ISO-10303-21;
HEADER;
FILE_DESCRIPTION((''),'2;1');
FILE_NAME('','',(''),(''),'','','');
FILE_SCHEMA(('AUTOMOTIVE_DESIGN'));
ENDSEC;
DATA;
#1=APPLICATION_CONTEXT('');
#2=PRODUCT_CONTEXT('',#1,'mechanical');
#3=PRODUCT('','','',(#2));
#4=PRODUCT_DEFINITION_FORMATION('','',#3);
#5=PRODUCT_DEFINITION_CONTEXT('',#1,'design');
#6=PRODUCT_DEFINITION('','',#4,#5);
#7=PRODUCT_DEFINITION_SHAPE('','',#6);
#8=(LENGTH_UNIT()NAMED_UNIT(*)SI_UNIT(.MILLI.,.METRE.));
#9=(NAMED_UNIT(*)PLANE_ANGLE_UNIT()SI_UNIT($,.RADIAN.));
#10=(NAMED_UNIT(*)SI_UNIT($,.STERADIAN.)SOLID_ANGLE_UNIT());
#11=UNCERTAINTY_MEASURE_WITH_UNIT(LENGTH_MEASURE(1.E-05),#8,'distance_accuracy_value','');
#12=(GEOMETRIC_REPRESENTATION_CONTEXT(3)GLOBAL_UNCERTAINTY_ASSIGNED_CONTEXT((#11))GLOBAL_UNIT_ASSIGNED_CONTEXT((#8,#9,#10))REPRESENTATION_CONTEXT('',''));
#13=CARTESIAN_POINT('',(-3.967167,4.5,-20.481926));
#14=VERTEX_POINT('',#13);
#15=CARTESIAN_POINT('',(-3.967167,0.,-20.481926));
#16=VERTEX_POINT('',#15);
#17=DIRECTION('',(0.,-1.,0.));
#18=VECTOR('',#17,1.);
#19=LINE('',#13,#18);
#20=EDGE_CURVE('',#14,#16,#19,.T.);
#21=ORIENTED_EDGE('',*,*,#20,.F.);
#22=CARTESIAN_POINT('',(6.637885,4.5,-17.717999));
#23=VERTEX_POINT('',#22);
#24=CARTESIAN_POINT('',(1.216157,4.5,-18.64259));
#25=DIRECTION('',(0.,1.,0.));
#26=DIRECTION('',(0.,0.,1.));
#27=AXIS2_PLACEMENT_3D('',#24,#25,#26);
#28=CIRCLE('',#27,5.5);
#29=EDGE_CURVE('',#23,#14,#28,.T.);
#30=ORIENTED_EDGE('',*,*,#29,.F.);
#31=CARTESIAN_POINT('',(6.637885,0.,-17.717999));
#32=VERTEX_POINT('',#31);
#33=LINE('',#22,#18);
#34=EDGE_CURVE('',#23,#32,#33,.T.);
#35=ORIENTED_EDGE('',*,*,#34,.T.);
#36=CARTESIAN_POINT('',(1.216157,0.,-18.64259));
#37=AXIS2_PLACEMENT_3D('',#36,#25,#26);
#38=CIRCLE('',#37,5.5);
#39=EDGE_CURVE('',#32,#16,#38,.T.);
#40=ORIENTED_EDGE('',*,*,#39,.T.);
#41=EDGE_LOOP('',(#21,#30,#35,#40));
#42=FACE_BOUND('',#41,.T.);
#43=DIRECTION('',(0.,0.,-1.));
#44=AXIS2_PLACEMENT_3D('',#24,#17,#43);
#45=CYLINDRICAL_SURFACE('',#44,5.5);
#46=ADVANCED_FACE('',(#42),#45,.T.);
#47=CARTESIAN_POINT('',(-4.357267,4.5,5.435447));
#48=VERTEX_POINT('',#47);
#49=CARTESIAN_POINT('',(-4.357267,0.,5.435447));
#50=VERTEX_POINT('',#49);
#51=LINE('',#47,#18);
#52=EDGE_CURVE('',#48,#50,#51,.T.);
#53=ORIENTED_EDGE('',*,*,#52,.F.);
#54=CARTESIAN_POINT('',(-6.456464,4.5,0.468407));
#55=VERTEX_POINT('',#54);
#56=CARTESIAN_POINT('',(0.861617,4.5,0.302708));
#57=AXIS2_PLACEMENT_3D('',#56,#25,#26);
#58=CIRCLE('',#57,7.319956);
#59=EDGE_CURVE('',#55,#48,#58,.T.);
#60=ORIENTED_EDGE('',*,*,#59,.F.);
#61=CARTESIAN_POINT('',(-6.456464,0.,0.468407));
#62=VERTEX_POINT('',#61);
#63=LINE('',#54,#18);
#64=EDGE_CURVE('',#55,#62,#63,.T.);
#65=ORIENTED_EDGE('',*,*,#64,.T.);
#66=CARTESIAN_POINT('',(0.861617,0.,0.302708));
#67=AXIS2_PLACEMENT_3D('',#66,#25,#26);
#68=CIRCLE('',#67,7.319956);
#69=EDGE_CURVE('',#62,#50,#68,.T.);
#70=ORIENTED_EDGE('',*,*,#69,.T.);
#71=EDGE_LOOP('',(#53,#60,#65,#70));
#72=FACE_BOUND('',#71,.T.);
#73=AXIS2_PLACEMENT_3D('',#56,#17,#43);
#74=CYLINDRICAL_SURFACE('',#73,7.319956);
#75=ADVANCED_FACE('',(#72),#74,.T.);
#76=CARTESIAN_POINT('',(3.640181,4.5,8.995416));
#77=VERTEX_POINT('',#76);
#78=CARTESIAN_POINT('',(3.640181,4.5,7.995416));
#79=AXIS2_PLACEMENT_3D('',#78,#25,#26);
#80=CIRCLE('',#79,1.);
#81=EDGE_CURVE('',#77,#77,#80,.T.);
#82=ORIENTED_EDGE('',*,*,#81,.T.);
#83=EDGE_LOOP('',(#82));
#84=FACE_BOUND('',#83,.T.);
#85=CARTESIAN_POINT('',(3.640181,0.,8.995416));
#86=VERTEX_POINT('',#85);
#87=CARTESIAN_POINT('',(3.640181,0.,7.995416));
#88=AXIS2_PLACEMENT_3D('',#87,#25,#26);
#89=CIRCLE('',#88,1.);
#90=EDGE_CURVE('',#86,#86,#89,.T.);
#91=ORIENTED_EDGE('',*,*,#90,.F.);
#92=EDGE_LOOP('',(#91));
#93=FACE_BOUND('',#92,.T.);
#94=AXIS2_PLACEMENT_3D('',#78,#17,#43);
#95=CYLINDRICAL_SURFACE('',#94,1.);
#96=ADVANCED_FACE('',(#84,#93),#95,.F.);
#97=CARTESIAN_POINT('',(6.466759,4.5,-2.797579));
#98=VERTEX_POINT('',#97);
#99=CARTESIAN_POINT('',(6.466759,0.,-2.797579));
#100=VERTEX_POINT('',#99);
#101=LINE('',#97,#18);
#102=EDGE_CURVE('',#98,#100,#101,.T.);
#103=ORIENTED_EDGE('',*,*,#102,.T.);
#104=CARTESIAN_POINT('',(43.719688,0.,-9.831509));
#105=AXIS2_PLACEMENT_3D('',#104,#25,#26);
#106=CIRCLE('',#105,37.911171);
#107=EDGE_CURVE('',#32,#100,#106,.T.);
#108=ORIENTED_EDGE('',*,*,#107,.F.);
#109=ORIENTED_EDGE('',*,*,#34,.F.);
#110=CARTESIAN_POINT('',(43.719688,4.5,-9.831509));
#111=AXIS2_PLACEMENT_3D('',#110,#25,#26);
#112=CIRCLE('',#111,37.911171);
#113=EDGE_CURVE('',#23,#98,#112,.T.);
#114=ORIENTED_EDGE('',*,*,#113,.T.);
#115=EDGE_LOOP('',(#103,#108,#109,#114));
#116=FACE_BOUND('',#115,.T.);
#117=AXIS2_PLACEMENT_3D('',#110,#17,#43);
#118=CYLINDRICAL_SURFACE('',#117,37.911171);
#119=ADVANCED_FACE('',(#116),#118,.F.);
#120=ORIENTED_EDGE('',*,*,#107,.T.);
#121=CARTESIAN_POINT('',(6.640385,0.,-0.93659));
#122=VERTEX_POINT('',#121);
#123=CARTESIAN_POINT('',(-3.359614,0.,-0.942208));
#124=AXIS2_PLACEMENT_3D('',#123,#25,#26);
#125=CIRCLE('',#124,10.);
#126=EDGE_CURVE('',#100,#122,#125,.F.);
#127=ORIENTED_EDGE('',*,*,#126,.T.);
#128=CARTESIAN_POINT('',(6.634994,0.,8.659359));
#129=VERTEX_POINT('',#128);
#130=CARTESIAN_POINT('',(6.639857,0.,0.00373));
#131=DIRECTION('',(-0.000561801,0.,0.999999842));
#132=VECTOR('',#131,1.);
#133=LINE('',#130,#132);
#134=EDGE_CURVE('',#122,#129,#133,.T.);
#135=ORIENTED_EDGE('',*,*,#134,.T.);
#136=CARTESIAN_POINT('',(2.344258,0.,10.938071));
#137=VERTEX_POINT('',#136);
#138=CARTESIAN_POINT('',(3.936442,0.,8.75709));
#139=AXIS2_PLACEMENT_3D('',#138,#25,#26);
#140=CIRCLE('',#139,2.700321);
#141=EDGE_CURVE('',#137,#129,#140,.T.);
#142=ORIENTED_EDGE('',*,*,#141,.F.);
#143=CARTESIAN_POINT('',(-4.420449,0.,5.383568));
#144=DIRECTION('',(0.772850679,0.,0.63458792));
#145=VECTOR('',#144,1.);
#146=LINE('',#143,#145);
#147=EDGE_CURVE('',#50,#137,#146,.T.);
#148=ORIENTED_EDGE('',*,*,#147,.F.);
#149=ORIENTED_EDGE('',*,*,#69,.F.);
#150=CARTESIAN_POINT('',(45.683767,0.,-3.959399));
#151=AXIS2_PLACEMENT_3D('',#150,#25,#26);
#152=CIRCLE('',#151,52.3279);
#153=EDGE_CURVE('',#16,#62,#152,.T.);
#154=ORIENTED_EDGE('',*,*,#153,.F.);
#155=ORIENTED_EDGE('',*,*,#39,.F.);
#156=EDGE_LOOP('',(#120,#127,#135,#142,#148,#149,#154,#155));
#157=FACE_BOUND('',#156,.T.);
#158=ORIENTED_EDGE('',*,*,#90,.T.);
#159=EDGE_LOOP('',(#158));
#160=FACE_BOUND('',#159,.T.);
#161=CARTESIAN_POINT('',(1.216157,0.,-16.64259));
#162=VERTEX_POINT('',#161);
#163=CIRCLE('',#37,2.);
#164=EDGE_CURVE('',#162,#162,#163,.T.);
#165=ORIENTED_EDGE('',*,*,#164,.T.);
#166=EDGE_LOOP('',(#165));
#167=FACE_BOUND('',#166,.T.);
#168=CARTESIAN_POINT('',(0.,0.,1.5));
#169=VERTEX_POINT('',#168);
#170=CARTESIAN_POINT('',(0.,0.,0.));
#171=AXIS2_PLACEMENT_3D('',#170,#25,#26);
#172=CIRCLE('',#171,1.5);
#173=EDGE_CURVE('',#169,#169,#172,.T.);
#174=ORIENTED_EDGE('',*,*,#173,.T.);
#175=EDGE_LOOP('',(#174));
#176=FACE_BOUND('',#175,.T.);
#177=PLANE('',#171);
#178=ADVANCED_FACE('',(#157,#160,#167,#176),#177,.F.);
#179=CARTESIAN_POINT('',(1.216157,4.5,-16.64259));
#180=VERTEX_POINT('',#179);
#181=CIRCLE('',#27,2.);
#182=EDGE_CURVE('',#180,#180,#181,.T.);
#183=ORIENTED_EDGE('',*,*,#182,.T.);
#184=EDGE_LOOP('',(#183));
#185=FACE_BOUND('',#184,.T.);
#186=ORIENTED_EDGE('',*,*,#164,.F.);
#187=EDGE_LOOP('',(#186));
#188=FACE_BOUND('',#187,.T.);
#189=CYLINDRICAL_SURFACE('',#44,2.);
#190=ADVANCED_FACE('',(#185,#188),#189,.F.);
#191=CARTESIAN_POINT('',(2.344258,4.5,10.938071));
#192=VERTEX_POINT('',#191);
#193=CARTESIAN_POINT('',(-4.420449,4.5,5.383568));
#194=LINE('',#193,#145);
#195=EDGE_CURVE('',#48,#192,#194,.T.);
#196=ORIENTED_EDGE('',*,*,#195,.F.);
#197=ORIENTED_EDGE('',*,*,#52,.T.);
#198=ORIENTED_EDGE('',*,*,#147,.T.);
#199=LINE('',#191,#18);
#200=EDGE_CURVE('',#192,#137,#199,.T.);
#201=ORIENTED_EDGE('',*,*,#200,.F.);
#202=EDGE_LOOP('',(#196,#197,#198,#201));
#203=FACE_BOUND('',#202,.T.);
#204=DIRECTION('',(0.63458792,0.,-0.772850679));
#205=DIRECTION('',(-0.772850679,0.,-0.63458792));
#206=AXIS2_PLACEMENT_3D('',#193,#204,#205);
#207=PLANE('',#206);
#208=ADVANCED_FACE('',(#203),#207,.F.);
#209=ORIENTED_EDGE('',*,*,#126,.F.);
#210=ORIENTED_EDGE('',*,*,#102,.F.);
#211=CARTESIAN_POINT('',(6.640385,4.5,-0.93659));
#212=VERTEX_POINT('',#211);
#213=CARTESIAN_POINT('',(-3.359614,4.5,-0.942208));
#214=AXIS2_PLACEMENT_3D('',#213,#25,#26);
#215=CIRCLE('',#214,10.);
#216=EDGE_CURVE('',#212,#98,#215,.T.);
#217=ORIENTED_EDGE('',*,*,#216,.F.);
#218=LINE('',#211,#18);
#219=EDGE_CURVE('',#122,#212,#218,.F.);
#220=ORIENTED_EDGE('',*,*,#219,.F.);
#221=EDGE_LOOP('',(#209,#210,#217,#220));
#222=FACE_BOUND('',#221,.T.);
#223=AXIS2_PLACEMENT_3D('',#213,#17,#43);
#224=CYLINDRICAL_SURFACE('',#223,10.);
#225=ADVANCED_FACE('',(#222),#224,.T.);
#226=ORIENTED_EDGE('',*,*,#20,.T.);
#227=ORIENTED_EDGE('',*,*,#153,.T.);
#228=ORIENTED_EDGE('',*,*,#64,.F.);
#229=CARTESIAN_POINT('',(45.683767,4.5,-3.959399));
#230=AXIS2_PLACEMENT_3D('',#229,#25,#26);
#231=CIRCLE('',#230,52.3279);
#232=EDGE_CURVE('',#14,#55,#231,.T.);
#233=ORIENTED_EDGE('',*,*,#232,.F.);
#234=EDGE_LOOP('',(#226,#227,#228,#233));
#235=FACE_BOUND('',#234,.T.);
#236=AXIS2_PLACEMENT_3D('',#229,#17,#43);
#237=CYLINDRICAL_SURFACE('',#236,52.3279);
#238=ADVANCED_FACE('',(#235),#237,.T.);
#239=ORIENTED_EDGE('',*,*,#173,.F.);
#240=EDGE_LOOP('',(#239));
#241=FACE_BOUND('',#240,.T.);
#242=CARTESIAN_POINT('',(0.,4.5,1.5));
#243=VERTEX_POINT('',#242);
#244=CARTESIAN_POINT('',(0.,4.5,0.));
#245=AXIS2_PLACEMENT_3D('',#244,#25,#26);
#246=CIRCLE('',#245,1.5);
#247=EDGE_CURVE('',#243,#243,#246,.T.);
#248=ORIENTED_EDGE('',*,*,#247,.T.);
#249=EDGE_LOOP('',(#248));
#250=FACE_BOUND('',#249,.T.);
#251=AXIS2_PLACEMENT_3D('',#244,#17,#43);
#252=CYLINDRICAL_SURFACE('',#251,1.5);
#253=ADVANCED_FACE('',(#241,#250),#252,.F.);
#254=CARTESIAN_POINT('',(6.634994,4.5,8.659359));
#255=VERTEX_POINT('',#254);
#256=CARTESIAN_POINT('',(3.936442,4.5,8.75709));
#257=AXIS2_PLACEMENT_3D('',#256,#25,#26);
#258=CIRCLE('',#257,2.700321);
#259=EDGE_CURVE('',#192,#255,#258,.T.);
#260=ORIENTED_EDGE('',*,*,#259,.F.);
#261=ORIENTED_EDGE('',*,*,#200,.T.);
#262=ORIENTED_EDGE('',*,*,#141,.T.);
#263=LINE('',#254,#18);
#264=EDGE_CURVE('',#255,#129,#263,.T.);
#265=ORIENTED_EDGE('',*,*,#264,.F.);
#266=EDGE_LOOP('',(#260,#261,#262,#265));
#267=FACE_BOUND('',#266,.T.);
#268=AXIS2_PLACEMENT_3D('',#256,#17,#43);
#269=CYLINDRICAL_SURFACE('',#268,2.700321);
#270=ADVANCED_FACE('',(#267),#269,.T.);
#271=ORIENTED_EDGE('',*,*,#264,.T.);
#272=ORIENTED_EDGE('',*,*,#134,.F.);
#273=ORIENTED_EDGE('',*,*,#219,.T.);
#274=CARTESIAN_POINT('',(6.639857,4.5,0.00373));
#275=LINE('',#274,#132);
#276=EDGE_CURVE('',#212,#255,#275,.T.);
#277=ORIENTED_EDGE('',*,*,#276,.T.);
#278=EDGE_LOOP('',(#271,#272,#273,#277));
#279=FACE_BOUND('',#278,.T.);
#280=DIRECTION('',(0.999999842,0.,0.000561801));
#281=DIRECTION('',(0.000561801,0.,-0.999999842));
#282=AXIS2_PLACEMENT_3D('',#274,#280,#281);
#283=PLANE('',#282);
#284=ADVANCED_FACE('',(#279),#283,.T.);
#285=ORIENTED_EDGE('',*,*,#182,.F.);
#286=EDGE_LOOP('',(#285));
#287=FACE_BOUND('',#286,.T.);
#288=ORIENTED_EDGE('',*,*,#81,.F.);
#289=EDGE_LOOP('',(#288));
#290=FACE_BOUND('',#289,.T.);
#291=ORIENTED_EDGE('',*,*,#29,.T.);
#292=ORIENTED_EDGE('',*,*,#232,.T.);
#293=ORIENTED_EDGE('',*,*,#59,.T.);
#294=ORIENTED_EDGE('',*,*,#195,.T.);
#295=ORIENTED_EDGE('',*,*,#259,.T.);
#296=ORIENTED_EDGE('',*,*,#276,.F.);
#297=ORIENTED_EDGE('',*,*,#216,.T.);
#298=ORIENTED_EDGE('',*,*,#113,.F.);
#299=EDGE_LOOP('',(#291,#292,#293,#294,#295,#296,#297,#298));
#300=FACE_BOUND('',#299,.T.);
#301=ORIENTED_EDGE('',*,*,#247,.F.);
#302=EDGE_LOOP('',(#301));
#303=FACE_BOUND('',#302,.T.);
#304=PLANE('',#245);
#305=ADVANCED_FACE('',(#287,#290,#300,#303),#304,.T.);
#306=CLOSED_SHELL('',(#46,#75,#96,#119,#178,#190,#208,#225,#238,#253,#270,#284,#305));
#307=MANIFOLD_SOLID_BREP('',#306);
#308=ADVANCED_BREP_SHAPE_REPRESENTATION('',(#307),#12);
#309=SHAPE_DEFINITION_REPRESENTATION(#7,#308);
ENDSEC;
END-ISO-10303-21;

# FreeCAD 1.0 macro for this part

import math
import FreeCAD as App
import Part
import Sketcher
from FreeCAD import Vector
Q = App.Units.Quantity


def edges_at(feature, points):
    """Names of the edges that pass closest to the given points."""
    edges = feature.Shape.Edges
    near = lambda p: min(range(len(edges)), key=lambda i: edges[i].distToShape(Part.Vertex(*p))[0])
    return sorted({f"Edge{near(p) + 1}" for p in points})

doc = App.newDocument("Part")
params = doc.addObject("Spreadsheet::Sheet", "Params")
for row, (alias, value) in enumerate([
    ("sketch1_diameter", "3 mm"),
    ("sketch1_diameter2", "2 mm"),
    ("sketch1_diameter3", "4 mm"),
    ("sketch1_radius", "5.5 mm"),
    ("pad1_length", "4.5 mm"),
    ("fillet_radius", "10 mm"),
], start=1):
    params.set(f"A{row}", alias)
    params.set(f"B{row}", "=" + value)
    params.setAlias(f"B{row}", alias)

body = doc.addObject("PartDesign::Body", "Body")

# Sketch on XZ plane
sketch1 = doc.addObject("Sketcher::SketchObject", "Sketch")
body.addObject(sketch1)
sketch1.AttachmentSupport = (doc.XZ_Plane, [""])
sketch1.MapMode = "FlatFace"
sketch1.addGeometry([
    Part.ArcOfCircle(Part.Circle(Vector(0.861617, 0.302708, 0), Vector(0, 0, 1), 7.319956), math.radians(135.476795), math.radians(178.702904)),  # 0
    Part.LineSegment(Vector(-4.357267, 5.435447, 0), Vector(2.344258, 10.938071, 0)),  # 1
    Part.ArcOfCircle(Part.Circle(Vector(3.936442, 8.75709, 0), Vector(0, 0, 1), 2.700321), math.radians(-2.074123), math.radians(126.130605)),  # 2
    Part.LineSegment(Vector(6.634994, 8.659359, 0), Vector(6.640943, -1.93065, 0)),  # 3
    Part.ArcOfCircle(Part.Circle(Vector(43.719688, -9.831509, 0), Vector(0, 0, 1), 37.911171), math.radians(167.971131), math.radians(191.416658)),  # 4
    Part.ArcOfCircle(Part.Circle(Vector(43.719676, -9.831511, 0), Vector(0, 0, 1), 37.911159), math.radians(-168.583342), math.radians(-167.993334)),  # 5
    Part.ArcOfCircle(Part.Circle(Vector(1.216157, -18.64259, 0), Vector(0, 0, 1), 5.5), math.radians(-160.462435), math.radians(9.6778)),  # 6
    Part.ArcOfCircle(Part.Circle(Vector(45.684033, -3.959311, 0), Vector(0, 0, 1), 52.32818), math.radians(-161.859674), math.radians(-161.593912)),  # 7
    Part.ArcOfCircle(Part.Circle(Vector(45.683767, -3.959399, 0), Vector(0, 0, 1), 52.3279), math.radians(175.146025), math.radians(198.140325)),  # 8
    Part.Circle(Vector(0, 0, 0), Vector(0, 0, 1), 1.5),  # 9
    Part.Circle(Vector(3.640181, 7.995416, 0), Vector(0, 0, 1), 1),  # 10
    Part.Circle(Vector(1.216157, -18.64259, 0), Vector(0, 0, 1), 2),  # 11
], False)
sketch1.addConstraint([
    Sketcher.Constraint("Coincident", 0, 1, 1, 1),
    Sketcher.Constraint("Coincident", 1, 2, 2, 2),
    Sketcher.Constraint("Coincident", 2, 1, 3, 1),
    Sketcher.Constraint("Coincident", 3, 2, 4, 1),
    Sketcher.Constraint("Coincident", 4, 2, 5, 1),
    Sketcher.Constraint("Coincident", 5, 2, 6, 2),
    Sketcher.Constraint("Coincident", 6, 1, 7, 2),
    Sketcher.Constraint("Coincident", 7, 1, 8, 2),
    Sketcher.Constraint("Coincident", 8, 1, 0, 2),
    Sketcher.Constraint("Coincident", 9, 3, -1, 1),
    Sketcher.Constraint("Coincident", 11, 3, 6, 3),
    Sketcher.Constraint("Diameter", 9, Q("3 mm")),
    Sketcher.Constraint("Diameter", 10, Q("2 mm")),
    Sketcher.Constraint("Diameter", 11, Q("4 mm")),
    Sketcher.Constraint("Radius", 6, Q("5.5 mm")),
    Sketcher.Constraint("Radius", 8, Q("52.3279 mm")),
    Sketcher.Constraint("Radius", 2, Q("2.700321 mm")),
    Sketcher.Constraint("Radius", 4, Q("37.911171 mm")),
    Sketcher.Constraint("Radius", 5, Q("37.911159 mm")),
    Sketcher.Constraint("Radius", 7, Q("52.32818 mm")),
    Sketcher.Constraint("DistanceY", 5, 2, -1, 1, Q("17.717999 mm")),
    Sketcher.Constraint("Radius", 0, Q("7.319956 mm")),
    Sketcher.Constraint("DistanceY", 8, 3, -1, 1, Q("3.959399 mm")),
    Sketcher.Constraint("DistanceY", 4, 3, 2, 3, Q("18.588598 mm")),
    Sketcher.Constraint("DistanceY", 5, 3, 2, 3, Q("18.588601 mm")),
    Sketcher.Constraint("DistanceY", 5, 3, 7, 3, Q("5.8722 mm")),
    Sketcher.Constraint("DistanceX", 2, 3, 3, 2, Q("2.704501 mm")),
    Sketcher.Constraint("DistanceY", 0, 3, 8, 1, Q("0.165699 mm")),
    Sketcher.Constraint("Distance", 3, Q("10.59001 mm")),
    Sketcher.Constraint("DistanceY", -1, 1, 2, 3, Q("8.75709 mm")),
    Sketcher.Constraint("DistanceX", -1, 1, 4, 3, Q("43.719688 mm")),
    Sketcher.Constraint("DistanceY", 6, 3, -1, 1, Q("18.64259 mm")),
    Sketcher.Constraint("DistanceX", -1, 1, 10, 3, Q("3.640181 mm")),
    Sketcher.Constraint("DistanceX", -1, 1, 1, 2, Q("2.344258 mm")),
    Sketcher.Constraint("DistanceY", -1, 1, 1, 2, Q("10.938071 mm")),
    Sketcher.Constraint("DistanceX", -1, 1, 4, 2, Q("6.55864 mm")),
    Sketcher.Constraint("DistanceX", 7, 1, -1, 1, Q("4.043271 mm")),
    Sketcher.Constraint("DistanceY", 0, 3, 2, 3, Q("8.454382 mm")),
    Sketcher.Constraint("DistanceX", 0, 3, 4, 3, Q("42.858071 mm")),
    Sketcher.Constraint("DistanceY", 0, 3, 10, 3, Q("7.692708 mm")),
    Sketcher.Constraint("DistanceY", 0, 3, 0, 1, Q("5.132739 mm")),
])
sketch1.setExpression("Constraints[11]", "Params.sketch1_diameter")
sketch1.setExpression("Constraints[12]", "Params.sketch1_diameter2")
sketch1.setExpression("Constraints[13]", "Params.sketch1_diameter3")
sketch1.setExpression("Constraints[14]", "Params.sketch1_radius")
pad1 = doc.addObject("PartDesign::Pad", "Pad")
body.addObject(pad1)
pad1.Profile = sketch1
pad1.setExpression("Length", "Params.pad1_length")
pad1.Reversed = True
doc.recompute()

fillet = doc.addObject("PartDesign::Fillet", "Fillet")
body.addObject(fillet)
fillet.Base = (pad1, edges_at(pad1, [(6.641, 2.25, -1.931)]))
fillet.setExpression("Radius", "Params.fillet_radius")

doc.recompute()
